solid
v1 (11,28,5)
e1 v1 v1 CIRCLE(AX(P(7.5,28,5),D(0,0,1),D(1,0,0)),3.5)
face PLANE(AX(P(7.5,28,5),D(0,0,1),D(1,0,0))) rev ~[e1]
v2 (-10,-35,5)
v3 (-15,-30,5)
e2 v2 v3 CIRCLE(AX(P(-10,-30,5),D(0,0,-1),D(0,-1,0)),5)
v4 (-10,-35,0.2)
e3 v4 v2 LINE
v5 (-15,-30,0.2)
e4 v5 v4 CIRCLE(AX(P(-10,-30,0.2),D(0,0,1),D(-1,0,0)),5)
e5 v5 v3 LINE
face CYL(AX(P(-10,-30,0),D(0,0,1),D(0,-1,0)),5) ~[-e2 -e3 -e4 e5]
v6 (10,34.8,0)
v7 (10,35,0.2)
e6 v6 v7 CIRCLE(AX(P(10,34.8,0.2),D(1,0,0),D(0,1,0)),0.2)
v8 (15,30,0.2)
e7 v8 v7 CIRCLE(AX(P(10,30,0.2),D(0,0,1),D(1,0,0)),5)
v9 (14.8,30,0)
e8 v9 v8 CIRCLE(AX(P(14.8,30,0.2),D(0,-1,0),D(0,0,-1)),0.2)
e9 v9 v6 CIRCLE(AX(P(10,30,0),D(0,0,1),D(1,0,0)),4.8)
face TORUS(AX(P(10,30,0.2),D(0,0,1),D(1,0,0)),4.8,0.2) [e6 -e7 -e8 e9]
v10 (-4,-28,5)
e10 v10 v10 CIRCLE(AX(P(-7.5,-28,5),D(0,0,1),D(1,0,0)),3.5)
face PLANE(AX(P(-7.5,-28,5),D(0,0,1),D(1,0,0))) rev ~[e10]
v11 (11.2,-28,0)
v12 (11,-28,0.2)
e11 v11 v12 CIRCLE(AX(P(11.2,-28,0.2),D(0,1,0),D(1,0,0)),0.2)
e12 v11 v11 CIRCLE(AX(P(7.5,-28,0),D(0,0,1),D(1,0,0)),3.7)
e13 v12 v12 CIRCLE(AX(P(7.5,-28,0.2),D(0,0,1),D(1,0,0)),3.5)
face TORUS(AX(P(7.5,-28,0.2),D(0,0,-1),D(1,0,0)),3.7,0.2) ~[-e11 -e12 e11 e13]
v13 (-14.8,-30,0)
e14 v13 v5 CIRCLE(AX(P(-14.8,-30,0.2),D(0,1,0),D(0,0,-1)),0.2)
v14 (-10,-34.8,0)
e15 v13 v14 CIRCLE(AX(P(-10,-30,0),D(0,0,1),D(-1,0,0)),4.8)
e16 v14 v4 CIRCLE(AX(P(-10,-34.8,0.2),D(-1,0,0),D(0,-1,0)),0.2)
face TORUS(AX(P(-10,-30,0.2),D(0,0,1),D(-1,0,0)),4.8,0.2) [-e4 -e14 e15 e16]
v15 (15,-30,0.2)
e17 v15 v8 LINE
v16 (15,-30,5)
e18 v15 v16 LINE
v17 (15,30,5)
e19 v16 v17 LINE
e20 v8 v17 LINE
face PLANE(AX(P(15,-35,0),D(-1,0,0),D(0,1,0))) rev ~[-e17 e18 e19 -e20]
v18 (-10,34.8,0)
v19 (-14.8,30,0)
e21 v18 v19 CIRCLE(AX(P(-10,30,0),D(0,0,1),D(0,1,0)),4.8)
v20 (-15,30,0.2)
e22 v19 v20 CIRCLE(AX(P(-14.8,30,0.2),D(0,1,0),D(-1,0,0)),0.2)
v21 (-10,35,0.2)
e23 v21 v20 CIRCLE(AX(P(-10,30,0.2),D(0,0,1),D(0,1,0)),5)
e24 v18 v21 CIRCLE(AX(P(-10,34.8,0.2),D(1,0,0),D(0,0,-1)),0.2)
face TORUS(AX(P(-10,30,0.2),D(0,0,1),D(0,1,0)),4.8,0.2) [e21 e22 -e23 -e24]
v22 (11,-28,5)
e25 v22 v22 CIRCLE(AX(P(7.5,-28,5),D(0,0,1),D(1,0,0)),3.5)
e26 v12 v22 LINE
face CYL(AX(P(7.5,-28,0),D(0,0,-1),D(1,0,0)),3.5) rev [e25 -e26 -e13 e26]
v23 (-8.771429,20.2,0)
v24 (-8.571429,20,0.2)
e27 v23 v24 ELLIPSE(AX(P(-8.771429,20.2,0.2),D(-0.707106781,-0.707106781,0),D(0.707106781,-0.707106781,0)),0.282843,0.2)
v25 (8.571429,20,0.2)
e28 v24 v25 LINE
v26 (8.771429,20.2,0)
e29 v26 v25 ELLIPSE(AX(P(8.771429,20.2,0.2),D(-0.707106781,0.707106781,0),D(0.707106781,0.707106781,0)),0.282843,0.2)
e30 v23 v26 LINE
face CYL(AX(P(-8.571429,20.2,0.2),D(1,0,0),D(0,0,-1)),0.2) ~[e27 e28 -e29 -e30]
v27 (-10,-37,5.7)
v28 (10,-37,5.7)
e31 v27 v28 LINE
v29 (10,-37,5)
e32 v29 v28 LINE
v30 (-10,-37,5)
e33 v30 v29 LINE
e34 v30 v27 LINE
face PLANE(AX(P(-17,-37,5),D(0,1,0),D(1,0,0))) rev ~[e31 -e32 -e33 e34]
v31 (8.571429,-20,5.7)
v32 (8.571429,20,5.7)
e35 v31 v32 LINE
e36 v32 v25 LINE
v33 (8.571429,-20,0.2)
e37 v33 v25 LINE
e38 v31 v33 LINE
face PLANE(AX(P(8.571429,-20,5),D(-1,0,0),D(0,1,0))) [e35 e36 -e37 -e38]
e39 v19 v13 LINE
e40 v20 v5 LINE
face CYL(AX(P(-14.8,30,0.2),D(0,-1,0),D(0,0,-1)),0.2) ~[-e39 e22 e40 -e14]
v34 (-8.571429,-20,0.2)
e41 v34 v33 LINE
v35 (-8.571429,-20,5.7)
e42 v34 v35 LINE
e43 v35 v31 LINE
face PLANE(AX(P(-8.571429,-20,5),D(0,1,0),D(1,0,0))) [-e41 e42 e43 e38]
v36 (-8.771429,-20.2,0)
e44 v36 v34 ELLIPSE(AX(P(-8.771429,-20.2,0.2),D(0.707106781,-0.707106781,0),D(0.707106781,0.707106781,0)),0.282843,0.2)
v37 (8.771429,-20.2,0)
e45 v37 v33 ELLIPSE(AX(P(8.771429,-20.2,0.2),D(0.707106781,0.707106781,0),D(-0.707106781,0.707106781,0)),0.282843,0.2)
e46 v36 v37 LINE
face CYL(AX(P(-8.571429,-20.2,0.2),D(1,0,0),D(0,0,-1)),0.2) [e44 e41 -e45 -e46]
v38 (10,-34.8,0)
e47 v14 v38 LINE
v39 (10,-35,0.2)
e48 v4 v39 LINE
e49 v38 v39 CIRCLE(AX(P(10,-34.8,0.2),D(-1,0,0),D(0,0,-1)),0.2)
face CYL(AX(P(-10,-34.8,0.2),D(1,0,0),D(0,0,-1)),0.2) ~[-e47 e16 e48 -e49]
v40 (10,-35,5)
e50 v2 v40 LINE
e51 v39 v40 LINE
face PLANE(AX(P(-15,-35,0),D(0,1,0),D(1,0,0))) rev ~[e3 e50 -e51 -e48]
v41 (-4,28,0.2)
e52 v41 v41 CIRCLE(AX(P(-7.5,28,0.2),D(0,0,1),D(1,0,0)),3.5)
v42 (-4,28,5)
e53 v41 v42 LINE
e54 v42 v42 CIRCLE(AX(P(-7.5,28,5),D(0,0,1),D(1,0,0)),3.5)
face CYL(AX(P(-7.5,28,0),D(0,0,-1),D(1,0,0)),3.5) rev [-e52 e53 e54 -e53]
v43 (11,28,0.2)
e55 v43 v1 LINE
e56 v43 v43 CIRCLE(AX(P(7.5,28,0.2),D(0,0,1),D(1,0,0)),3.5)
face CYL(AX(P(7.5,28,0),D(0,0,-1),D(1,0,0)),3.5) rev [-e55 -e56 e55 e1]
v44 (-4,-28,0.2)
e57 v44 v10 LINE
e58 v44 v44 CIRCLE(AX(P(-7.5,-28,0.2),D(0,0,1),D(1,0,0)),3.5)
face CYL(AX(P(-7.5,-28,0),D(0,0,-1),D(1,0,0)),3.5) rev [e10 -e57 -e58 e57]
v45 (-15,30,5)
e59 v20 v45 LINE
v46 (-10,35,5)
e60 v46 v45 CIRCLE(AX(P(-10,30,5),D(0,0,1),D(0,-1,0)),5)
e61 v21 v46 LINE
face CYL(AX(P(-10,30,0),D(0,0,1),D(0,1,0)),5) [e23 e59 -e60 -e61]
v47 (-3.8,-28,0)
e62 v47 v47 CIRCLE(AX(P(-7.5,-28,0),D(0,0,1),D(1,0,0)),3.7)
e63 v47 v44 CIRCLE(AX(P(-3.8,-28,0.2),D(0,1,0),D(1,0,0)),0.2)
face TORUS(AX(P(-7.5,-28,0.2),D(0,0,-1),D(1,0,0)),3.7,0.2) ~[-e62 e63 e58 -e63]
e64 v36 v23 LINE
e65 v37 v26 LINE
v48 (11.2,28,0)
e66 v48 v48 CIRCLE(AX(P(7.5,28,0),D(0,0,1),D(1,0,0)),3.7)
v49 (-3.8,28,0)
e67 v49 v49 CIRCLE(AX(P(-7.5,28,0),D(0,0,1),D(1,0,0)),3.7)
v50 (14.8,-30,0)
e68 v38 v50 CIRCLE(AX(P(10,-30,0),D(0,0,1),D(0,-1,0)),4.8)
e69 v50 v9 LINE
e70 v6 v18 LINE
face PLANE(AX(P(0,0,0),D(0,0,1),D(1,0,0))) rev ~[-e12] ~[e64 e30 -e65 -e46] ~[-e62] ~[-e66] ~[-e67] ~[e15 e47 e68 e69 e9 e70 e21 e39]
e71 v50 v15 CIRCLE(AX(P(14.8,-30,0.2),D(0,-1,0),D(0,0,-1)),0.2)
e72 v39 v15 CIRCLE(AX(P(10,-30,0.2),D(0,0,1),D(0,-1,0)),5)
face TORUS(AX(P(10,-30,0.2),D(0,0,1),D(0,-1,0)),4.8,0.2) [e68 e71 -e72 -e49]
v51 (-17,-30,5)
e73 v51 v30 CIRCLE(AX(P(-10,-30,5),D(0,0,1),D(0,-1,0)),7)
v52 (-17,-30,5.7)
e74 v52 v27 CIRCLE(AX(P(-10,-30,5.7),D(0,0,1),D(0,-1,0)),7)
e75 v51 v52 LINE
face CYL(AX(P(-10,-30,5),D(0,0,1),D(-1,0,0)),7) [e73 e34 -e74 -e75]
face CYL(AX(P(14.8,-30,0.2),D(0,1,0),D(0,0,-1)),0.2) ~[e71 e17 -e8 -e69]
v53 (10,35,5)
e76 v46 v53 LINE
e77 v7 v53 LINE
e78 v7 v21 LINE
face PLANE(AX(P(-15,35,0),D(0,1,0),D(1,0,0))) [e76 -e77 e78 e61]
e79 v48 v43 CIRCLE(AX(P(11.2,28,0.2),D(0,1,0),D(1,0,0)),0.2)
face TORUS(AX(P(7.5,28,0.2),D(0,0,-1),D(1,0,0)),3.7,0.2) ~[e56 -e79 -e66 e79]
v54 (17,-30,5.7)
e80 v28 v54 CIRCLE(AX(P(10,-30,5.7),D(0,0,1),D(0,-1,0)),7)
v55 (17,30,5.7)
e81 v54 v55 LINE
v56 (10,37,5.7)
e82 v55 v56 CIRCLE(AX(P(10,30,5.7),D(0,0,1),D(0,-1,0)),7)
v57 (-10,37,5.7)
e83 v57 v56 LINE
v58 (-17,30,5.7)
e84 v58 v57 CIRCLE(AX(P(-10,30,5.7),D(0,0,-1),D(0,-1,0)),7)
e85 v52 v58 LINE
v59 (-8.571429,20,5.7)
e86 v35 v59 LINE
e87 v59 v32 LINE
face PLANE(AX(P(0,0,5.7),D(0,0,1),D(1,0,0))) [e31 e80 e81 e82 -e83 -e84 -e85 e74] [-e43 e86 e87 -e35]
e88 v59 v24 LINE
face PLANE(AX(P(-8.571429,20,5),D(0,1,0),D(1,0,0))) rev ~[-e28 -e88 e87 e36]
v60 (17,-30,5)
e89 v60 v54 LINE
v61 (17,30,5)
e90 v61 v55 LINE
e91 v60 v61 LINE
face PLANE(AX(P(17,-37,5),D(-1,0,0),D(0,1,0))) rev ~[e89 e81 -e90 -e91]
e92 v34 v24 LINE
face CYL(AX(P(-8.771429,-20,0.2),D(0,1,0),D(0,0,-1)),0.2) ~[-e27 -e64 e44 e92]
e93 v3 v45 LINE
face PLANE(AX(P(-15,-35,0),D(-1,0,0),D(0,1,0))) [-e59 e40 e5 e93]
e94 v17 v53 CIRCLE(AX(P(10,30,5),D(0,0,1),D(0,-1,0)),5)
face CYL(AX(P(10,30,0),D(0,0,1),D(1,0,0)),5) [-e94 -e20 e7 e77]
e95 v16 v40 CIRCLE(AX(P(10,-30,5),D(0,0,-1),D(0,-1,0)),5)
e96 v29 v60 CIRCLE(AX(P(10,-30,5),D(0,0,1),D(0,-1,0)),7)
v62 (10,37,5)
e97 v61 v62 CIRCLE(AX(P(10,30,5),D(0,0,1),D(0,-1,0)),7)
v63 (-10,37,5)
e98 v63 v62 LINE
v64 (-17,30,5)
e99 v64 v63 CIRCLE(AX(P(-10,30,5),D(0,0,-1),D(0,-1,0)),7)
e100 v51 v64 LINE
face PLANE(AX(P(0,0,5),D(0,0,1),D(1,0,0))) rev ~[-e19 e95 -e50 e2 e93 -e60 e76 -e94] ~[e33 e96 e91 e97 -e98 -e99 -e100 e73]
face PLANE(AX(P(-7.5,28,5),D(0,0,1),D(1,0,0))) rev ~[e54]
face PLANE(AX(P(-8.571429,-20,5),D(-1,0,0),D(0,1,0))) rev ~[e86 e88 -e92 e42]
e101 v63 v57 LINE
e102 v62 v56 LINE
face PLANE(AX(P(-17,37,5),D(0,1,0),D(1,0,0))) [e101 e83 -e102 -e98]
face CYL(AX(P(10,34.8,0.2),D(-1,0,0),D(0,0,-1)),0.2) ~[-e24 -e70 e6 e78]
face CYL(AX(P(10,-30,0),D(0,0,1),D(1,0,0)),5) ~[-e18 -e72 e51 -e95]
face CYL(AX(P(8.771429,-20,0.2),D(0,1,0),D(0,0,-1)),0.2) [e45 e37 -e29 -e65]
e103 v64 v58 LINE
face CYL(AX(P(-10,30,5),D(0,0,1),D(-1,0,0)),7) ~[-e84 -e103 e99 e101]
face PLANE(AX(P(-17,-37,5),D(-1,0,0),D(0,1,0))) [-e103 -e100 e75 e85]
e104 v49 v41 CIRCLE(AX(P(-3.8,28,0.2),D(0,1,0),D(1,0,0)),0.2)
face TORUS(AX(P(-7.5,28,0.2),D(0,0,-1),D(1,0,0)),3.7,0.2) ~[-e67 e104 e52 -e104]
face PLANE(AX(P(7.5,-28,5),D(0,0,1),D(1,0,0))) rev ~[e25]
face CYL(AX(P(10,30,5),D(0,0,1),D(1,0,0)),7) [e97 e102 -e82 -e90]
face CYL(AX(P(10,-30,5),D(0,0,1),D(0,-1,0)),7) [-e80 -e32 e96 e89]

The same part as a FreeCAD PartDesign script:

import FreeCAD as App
import Part
import Sketcher


def edges_at(feature, points):
    """Names of the edges that pass closest to the given points."""
    edges = feature.Shape.Edges
    near = lambda p: min(range(len(edges)), key=lambda i: edges[i].distToShape(Part.Vertex(*p))[0])
    return sorted({f"Edge{near(p) + 1}" for p in points})


def add_polygon(sketch, points):
    """Adds a closed chain of lines whose ends are joined by coincident constraints."""
    first, n = sketch.GeometryCount, len(points)
    for a, b in zip(points, points[1:] + points[:1]):
        sketch.addGeometry(Part.LineSegment(App.Vector(*a, 0), App.Vector(*b, 0)), False)
    for i in range(n):
        sketch.addConstraint(Sketcher.Constraint("Coincident", first + i, 2, first + (i + 1) % n, 1))

doc = App.newDocument("Part")
params = doc.addObject("Spreadsheet::Sheet", "Params")
for row, (alias, value) in enumerate([
    ("sketch1_diameter", "7 mm"),
    ("sketch1_width", "30 mm"),
    ("sketch1_height", "70 mm"),
    ("sketch1_height2", "40 mm"),
    ("pad1_length", "5 mm"),
    ("sketch2_width", "34 mm"),
    ("sketch2_height", "74 mm"),
    ("sketch2_height2", "40 mm"),
    ("pad2_length", "0.7 mm"),
    ("fillet_radius", "5 mm"),
    ("fillet2_radius", "0.2 mm"),
    ("fillet3_radius", "7 mm"),
], start=1):
    params.set(f"A{row}", alias)
    params.set(f"B{row}", "=" + value)
    params.setAlias(f"B{row}", alias)

body = doc.addObject("PartDesign::Body", "Body")

sketch1 = body.newObject("Sketcher::SketchObject", "Sketch")
sketch1.AttachmentSupport = (doc.getObject("XY_Plane"), [""])
sketch1.MapMode = "FlatFace"
add_polygon(sketch1, [(-15, 35), (-15, -35), (15, -35), (15, 35)])
sketch1.addGeometry(Part.Circle(App.Vector(-7.5, -28, 0), App.Vector(0, 0, 1), 3.5), False)
sketch1.addGeometry(Part.Circle(App.Vector(7.5, -28, 0), App.Vector(0, 0, 1), 3.5), False)
sketch1.addGeometry(Part.Circle(App.Vector(-7.5, 28, 0), App.Vector(0, 0, 1), 3.5), False)
add_polygon(sketch1, [(8.6, -20), (-8.6, -20), (-8.6, 20), (8.6, 20)])
sketch1.addGeometry(Part.Circle(App.Vector(7.5, 28, 0), App.Vector(0, 0, 1), 3.5), False)
sketch1.addConstraint(Sketcher.Constraint("Vertical", 0))
sketch1.addConstraint(Sketcher.Constraint("Horizontal", 1))
sketch1.addConstraint(Sketcher.Constraint("Vertical", 2))
sketch1.addConstraint(Sketcher.Constraint("Horizontal", 3))
sketch1.addConstraint(Sketcher.Constraint("Horizontal", 7))
sketch1.addConstraint(Sketcher.Constraint("Vertical", 8))
sketch1.addConstraint(Sketcher.Constraint("Horizontal", 9))
sketch1.addConstraint(Sketcher.Constraint("Vertical", 10))
sketch1.addConstraint(Sketcher.Constraint("Equal", 4, 5))
sketch1.addConstraint(Sketcher.Constraint("Equal", 5, 6))
sketch1.addConstraint(Sketcher.Constraint("Equal", 6, 11))
sketch1.addConstraint(Sketcher.Constraint("Symmetric", 5, 3, 6, 3, -1, 1))
sketch1.addConstraint(Sketcher.Constraint("Symmetric", 4, 3, 11, 3, -1, 1))
sketch1.addConstraint(Sketcher.Constraint("Symmetric", 0, 2, 2, 2, -1, 1))
sketch1.addConstraint(Sketcher.Constraint("Symmetric", 7, 2, 9, 2, -1, 1))
sketch1.addConstraint(Sketcher.Constraint("Symmetric", 4, 3, 5, 3, -2))
sketch1.addConstraint(Sketcher.Constraint("Diameter", 4, 7.0))
sketch1.addConstraint(Sketcher.Constraint("DistanceX", 1, 1, 1, 2, 30.0))
sketch1.addConstraint(Sketcher.Constraint("DistanceY", 0, 2, 0, 1, 70.0))
sketch1.addConstraint(Sketcher.Constraint("DistanceY", 8, 1, 8, 2, 40.0))
sketch1.addConstraint(Sketcher.Constraint("DistanceY", 4, 3, -1, 1, 28.0))
sketch1.addConstraint(Sketcher.Constraint("DistanceX", 4, 3, 5, 3, 15.0))
sketch1.addConstraint(Sketcher.Constraint("DistanceX", 7, 2, 7, 1, 17.142857))
sketch1.setExpression("Constraints[24]", "Params.sketch1_diameter")
sketch1.setExpression("Constraints[25]", "Params.sketch1_width")
sketch1.setExpression("Constraints[26]", "Params.sketch1_height")
sketch1.setExpression("Constraints[27]", "Params.sketch1_height2")
pad1 = body.newObject("PartDesign::Pad", "Pad")
pad1.Profile = sketch1
pad1.setExpression("Length", "Params.pad1_length")

sketch2 = body.newObject("Sketcher::SketchObject", "Sketch001")
sketch2.AttachmentSupport = (doc.getObject("XY_Plane"), [""])
sketch2.MapMode = "FlatFace"
sketch2.AttachmentOffset = App.Placement(App.Vector(0, 0, 5), App.Rotation())
add_polygon(sketch2, [(-17, 37), (-17, -37), (17, -37), (17, 37)])
add_polygon(sketch2, [(9, 20), (9, -20), (-9, -20), (-9, 20)])
sketch2.addConstraint(Sketcher.Constraint("Vertical", 0))
sketch2.addConstraint(Sketcher.Constraint("Horizontal", 1))
sketch2.addConstraint(Sketcher.Constraint("Vertical", 2))
sketch2.addConstraint(Sketcher.Constraint("Horizontal", 3))
sketch2.addConstraint(Sketcher.Constraint("Vertical", 4))
sketch2.addConstraint(Sketcher.Constraint("Horizontal", 5))
sketch2.addConstraint(Sketcher.Constraint("Vertical", 6))
sketch2.addConstraint(Sketcher.Constraint("Horizontal", 7))
sketch2.addConstraint(Sketcher.Constraint("Symmetric", 0, 2, 2, 2, -1, 1))
sketch2.addConstraint(Sketcher.Constraint("Symmetric", 4, 2, 6, 2, -1, 1))
sketch2.addConstraint(Sketcher.Constraint("DistanceX", 1, 1, 1, 2, 34.0))
sketch2.addConstraint(Sketcher.Constraint("DistanceY", 0, 2, 0, 1, 74.0))
sketch2.addConstraint(Sketcher.Constraint("DistanceY", 4, 2, 4, 1, 40.0))
sketch2.addConstraint(Sketcher.Constraint("DistanceX", 5, 2, 5, 1, 17.142857))
sketch2.setExpression("Constraints[18]", "Params.sketch2_width")
sketch2.setExpression("Constraints[19]", "Params.sketch2_height")
sketch2.setExpression("Constraints[20]", "Params.sketch2_height2")
pad2 = body.newObject("PartDesign::Pad", "Pad001")
pad2.Profile = sketch2
pad2.setExpression("Length", "Params.pad2_length")
doc.recompute()

fillet = body.newObject("PartDesign::Fillet", "Fillet")
fillet.Base = (pad2, edges_at(pad2, [
    (-15, 35, 2.5),
    (15, 35, 2.5),
    (15, -35, 2.5),
    (-15, -35, 2.5),
]))
fillet.setExpression("Radius", "Params.fillet_radius")
doc.recompute()

fillet2 = body.newObject("PartDesign::Fillet", "Fillet001")
fillet2.Base = (fillet, edges_at(fillet, [
    (-11, -28, 0),
    (4, -28, 0),
    (8.571, 0, 0),
    (0, 20, 0),
    (-8.571, 0, 0),
    (0, -20, 0),
    (-11, 28, 0),
    (4, 28, 0),
    (15, 0, 0),
    (-15, 0, 0),
    (0, 35, 0),
    (0, -35, 0),
    (13.536, 33.536, 0),
    (-13.536, 33.536, 0),
    (-13.536, -33.536, 0),
    (13.536, -33.536, 0),
]))
fillet2.setExpression("Radius", "Params.fillet2_radius")
doc.recompute()

fillet3 = body.newObject("PartDesign::Fillet", "Fillet002")
fillet3.Base = (fillet2, edges_at(fillet2, [
    (17, 37, 5.35),
    (-17, 37, 5.35),
    (-17, -37, 5.35),
    (17, -37, 5.35),
]))
fillet3.setExpression("Radius", "Params.fillet3_radius")

doc.recompute()
